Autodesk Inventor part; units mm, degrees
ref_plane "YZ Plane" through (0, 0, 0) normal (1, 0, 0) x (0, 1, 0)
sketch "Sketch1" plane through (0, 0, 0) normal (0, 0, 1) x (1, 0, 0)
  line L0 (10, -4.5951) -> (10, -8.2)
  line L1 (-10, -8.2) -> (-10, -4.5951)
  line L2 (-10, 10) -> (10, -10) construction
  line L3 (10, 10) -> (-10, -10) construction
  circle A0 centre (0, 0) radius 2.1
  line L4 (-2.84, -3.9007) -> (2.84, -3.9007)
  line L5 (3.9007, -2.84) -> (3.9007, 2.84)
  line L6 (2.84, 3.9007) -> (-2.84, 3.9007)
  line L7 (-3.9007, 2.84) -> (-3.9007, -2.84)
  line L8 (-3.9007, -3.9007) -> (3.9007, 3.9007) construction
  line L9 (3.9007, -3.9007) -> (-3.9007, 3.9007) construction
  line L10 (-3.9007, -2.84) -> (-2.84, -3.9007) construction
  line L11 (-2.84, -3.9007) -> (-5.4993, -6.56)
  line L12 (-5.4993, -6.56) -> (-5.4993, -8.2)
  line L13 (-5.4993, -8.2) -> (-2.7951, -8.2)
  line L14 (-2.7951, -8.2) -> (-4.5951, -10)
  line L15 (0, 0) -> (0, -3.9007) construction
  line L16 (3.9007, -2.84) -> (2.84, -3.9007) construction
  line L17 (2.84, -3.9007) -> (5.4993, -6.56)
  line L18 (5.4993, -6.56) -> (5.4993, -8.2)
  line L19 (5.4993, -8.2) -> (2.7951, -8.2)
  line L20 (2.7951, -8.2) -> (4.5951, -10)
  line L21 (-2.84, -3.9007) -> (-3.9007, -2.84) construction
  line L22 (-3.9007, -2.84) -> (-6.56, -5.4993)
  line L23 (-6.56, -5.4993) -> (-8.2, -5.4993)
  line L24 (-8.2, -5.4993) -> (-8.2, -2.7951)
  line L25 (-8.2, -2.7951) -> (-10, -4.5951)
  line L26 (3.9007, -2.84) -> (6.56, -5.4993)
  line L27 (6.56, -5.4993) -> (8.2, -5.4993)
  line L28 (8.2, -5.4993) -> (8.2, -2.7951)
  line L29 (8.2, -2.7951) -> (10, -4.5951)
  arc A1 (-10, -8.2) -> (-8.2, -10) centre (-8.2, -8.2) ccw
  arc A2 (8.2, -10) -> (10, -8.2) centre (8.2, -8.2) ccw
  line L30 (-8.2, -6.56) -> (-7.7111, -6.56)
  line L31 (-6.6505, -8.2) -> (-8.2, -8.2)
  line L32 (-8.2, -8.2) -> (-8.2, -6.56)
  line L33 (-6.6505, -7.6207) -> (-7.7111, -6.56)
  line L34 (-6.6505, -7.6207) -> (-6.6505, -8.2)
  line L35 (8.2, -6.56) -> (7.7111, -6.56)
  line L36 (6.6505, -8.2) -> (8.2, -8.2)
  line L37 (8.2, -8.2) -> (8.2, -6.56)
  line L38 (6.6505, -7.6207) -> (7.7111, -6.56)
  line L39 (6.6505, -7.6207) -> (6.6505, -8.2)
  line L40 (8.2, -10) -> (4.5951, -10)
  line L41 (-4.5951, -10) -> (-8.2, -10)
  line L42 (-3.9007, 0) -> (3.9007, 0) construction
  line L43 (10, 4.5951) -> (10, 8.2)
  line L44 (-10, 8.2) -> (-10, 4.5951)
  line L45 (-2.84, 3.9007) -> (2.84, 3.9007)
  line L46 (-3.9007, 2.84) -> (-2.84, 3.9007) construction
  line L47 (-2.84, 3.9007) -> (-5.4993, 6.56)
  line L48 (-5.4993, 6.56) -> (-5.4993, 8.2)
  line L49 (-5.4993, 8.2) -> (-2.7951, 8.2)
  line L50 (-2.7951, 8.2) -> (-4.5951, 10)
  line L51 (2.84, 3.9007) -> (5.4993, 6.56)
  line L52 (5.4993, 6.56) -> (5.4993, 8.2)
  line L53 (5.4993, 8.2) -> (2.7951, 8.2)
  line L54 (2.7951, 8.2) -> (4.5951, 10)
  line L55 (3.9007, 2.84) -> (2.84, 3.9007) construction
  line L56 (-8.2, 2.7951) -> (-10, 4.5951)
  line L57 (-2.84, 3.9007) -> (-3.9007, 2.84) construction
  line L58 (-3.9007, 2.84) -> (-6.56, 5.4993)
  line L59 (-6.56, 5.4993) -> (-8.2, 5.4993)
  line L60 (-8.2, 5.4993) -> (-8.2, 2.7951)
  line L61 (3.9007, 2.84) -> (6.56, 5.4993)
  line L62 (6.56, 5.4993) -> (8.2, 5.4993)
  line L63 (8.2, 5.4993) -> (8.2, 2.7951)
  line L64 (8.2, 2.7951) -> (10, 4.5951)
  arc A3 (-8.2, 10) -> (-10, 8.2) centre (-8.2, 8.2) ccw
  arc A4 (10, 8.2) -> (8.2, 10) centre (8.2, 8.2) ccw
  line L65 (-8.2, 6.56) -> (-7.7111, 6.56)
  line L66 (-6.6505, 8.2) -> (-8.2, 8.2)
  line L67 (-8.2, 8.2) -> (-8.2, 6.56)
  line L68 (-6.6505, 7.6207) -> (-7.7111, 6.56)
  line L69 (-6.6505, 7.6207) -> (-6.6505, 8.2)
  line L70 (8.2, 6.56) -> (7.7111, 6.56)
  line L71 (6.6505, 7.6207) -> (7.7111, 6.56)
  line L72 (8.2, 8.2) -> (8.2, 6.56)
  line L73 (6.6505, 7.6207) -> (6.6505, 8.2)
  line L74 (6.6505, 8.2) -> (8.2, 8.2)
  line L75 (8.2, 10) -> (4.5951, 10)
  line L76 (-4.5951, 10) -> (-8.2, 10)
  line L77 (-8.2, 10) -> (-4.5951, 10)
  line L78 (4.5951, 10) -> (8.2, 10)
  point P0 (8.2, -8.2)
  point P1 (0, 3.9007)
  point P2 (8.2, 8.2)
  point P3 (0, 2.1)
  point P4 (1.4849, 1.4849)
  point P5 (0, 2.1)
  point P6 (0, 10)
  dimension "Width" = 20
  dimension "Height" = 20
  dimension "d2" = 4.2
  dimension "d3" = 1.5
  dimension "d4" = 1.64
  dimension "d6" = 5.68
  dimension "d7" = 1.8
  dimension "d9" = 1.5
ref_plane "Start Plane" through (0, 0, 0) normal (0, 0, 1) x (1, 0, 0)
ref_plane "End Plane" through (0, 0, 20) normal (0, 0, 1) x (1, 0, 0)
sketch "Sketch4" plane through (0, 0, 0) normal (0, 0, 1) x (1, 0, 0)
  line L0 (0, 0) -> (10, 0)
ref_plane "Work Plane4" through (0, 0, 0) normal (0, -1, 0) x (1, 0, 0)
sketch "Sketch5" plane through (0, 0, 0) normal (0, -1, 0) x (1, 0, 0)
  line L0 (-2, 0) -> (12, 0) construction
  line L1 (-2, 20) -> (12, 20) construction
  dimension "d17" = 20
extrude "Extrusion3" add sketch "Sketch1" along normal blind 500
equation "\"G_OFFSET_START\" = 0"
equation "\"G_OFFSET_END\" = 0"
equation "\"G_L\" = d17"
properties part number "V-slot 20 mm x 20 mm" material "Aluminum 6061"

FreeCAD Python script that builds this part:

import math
import FreeCAD as App
import Part
import Sketcher

V = App.Vector
Q = App.Units.Quantity

doc = App.newDocument("Part")
body = doc.addObject("PartDesign::Body", "Body")

# Sketch on XY plane
sketch1 = body.newObject("Sketcher::SketchObject", "Sketch")
sketch1.AttachmentSupport = (doc.getObject("XY_Plane"), [""])
sketch1.MapMode = "FlatFace"
sketch1.addGeometry(Part.LineSegment(V(10, -8.2, 0), V(10, -4.6, 0)), False)
sketch1.addGeometry(Part.LineSegment(V(10, -4.6, 0), V(8.2, -2.8, 0)), False)
sketch1.addGeometry(Part.LineSegment(V(8.2, -2.8, 0), V(8.2, -5.5, 0)), False)
sketch1.addGeometry(Part.LineSegment(V(8.2, -5.5, 0), V(6.56, -5.5, 0)), False)
sketch1.addGeometry(Part.LineSegment(V(6.56, -5.5, 0), V(3.9, -2.84, 0)), False)
sketch1.addGeometry(Part.LineSegment(V(3.9, -2.84, 0), V(3.9, 2.84, 0)), False)
sketch1.addGeometry(Part.LineSegment(V(3.9, 2.84, 0), V(6.56, 5.5, 0)), False)
sketch1.addGeometry(Part.LineSegment(V(6.56, 5.5, 0), V(8.2, 5.5, 0)), False)
sketch1.addGeometry(Part.LineSegment(V(8.2, 5.5, 0), V(8.2, 2.8, 0)), False)
sketch1.addGeometry(Part.LineSegment(V(8.2, 2.8, 0), V(10, 4.6, 0)), False)
sketch1.addGeometry(Part.LineSegment(V(10, 4.6, 0), V(10, 8.2, 0)), False)
sketch1.addGeometry(Part.ArcOfCircle(Part.Circle(V(8.2, 8.2, 0), V(0, 0, 1), 1.8), math.radians(0), math.radians(90)), False)
sketch1.addGeometry(Part.LineSegment(V(8.2, 10, 0), V(4.6, 10, 0)), False)
sketch1.addGeometry(Part.LineSegment(V(4.6, 10, 0), V(2.8, 8.2, 0)), False)
sketch1.addGeometry(Part.LineSegment(V(2.8, 8.2, 0), V(5.5, 8.2, 0)), False)
sketch1.addGeometry(Part.LineSegment(V(5.5, 8.2, 0), V(5.5, 6.56, 0)), False)
sketch1.addGeometry(Part.LineSegment(V(5.5, 6.56, 0), V(2.84, 3.9, 0)), False)
sketch1.addGeometry(Part.LineSegment(V(2.84, 3.9, 0), V(-2.84, 3.9, 0)), False)
sketch1.addGeometry(Part.LineSegment(V(-2.84, 3.9, 0), V(-5.5, 6.56, 0)), False)
sketch1.addGeometry(Part.LineSegment(V(-5.5, 6.56, 0), V(-5.5, 8.2, 0)), False)
sketch1.addGeometry(Part.LineSegment(V(-5.5, 8.2, 0), V(-2.8, 8.2, 0)), False)
sketch1.addGeometry(Part.LineSegment(V(-2.8, 8.2, 0), V(-4.6, 10, 0)), False)
sketch1.addGeometry(Part.LineSegment(V(-4.6, 10, 0), V(-8.2, 10, 0)), False)
sketch1.addGeometry(Part.ArcOfCircle(Part.Circle(V(-8.2, 8.2, 0), V(0, 0, 1), 1.8), math.radians(90), math.radians(180)), False)
sketch1.addGeometry(Part.LineSegment(V(-10, 8.2, 0), V(-10, 4.6, 0)), False)
sketch1.addGeometry(Part.LineSegment(V(-10, 4.6, 0), V(-8.2, 2.8, 0)), False)
sketch1.addGeometry(Part.LineSegment(V(-8.2, 2.8, 0), V(-8.2, 5.5, 0)), False)
sketch1.addGeometry(Part.LineSegment(V(-8.2, 5.5, 0), V(-6.56, 5.5, 0)), False)
sketch1.addGeometry(Part.LineSegment(V(-6.56, 5.5, 0), V(-3.9, 2.84, 0)), False)
sketch1.addGeometry(Part.LineSegment(V(-3.9, 2.84, 0), V(-3.9, -2.84, 0)), False)
sketch1.addGeometry(Part.LineSegment(V(-3.9, -2.84, 0), V(-6.56, -5.5, 0)), False)
sketch1.addGeometry(Part.LineSegment(V(-6.56, -5.5, 0), V(-8.2, -5.5, 0)), False)
sketch1.addGeometry(Part.LineSegment(V(-8.2, -5.5, 0), V(-8.2, -2.8, 0)), False)
sketch1.addGeometry(Part.LineSegment(V(-8.2, -2.8, 0), V(-10, -4.6, 0)), False)
sketch1.addGeometry(Part.LineSegment(V(-10, -4.6, 0), V(-10, -8.2, 0)), False)
sketch1.addGeometry(Part.ArcOfCircle(Part.Circle(V(-8.2, -8.2, 0), V(0, 0, 1), 1.8), math.radians(180), math.radians(270)), False)
sketch1.addGeometry(Part.LineSegment(V(-8.2, -10, 0), V(-4.6, -10, 0)), False)
sketch1.addGeometry(Part.LineSegment(V(-4.6, -10, 0), V(-2.8, -8.2, 0)), False)
sketch1.addGeometry(Part.LineSegment(V(-2.8, -8.2, 0), V(-5.5, -8.2, 0)), False)
sketch1.addGeometry(Part.LineSegment(V(-5.5, -8.2, 0), V(-5.5, -6.56, 0)), False)
sketch1.addGeometry(Part.LineSegment(V(-5.5, -6.56, 0), V(-2.84, -3.9, 0)), False)
sketch1.addGeometry(Part.LineSegment(V(-2.84, -3.9, 0), V(2.84, -3.9, 0)), False)
sketch1.addGeometry(Part.LineSegment(V(2.84, -3.9, 0), V(5.5, -6.56, 0)), False)
sketch1.addGeometry(Part.LineSegment(V(5.5, -6.56, 0), V(5.5, -8.2, 0)), False)
sketch1.addGeometry(Part.LineSegment(V(5.5, -8.2, 0), V(2.8, -8.2, 0)), False)
sketch1.addGeometry(Part.LineSegment(V(2.8, -8.2, 0), V(4.6, -10, 0)), False)
sketch1.addGeometry(Part.LineSegment(V(4.6, -10, 0), V(8.2, -10, 0)), False)
sketch1.addGeometry(Part.ArcOfCircle(Part.Circle(V(8.2, -8.2, 0), V(0, 0, 1), 1.8), math.radians(-90), math.radians(0)), False)
sketch1.addGeometry(Part.LineSegment(V(-8.2, -8.2, 0), V(-8.2, -6.56, 0)), False)
sketch1.addGeometry(Part.LineSegment(V(-8.2, -6.56, 0), V(-7.71, -6.56, 0)), False)
sketch1.addGeometry(Part.LineSegment(V(-7.71, -6.56, 0), V(-6.65, -7.62, 0)), False)
sketch1.addGeometry(Part.LineSegment(V(-6.65, -7.62, 0), V(-6.65, -8.2, 0)), False)
sketch1.addGeometry(Part.LineSegment(V(-6.65, -8.2, 0), V(-8.2, -8.2, 0)), False)
sketch1.addGeometry(Part.LineSegment(V(7.71, -6.56, 0), V(8.2, -6.56, 0)), False)
sketch1.addGeometry(Part.LineSegment(V(8.2, -6.56, 0), V(8.2, -8.2, 0)), False)
sketch1.addGeometry(Part.LineSegment(V(8.2, -8.2, 0), V(6.65, -8.2, 0)), False)
sketch1.addGeometry(Part.LineSegment(V(6.65, -8.2, 0), V(6.65, -7.62, 0)), False)
sketch1.addGeometry(Part.LineSegment(V(6.65, -7.62, 0), V(7.71, -6.56, 0)), False)
sketch1.addGeometry(Part.LineSegment(V(-7.71, 6.56, 0), V(-8.2, 6.56, 0)), False)
sketch1.addGeometry(Part.LineSegment(V(-8.2, 6.56, 0), V(-8.2, 8.2, 0)), False)
sketch1.addGeometry(Part.LineSegment(V(-8.2, 8.2, 0), V(-6.65, 8.2, 0)), False)
sketch1.addGeometry(Part.LineSegment(V(-6.65, 8.2, 0), V(-6.65, 7.62, 0)), False)
sketch1.addGeometry(Part.LineSegment(V(-6.65, 7.62, 0), V(-7.71, 6.56, 0)), False)
sketch1.addGeometry(Part.Circle(V(0, 0, 0), V(0, 0, 1), 2.1), False)
sketch1.addGeometry(Part.LineSegment(V(8.2, 8.2, 0), V(8.2, 6.56, 0)), False)
sketch1.addGeometry(Part.LineSegment(V(8.2, 6.56, 0), V(7.71, 6.56, 0)), False)
sketch1.addGeometry(Part.LineSegment(V(7.71, 6.56, 0), V(6.65, 7.62, 0)), False)
sketch1.addGeometry(Part.LineSegment(V(6.65, 7.62, 0), V(6.65, 8.2, 0)), False)
sketch1.addGeometry(Part.LineSegment(V(6.65, 8.2, 0), V(8.2, 8.2, 0)), False)
sketch1.addConstraint(Sketcher.Constraint("Coincident", 0, 2, 1, 1))
sketch1.addConstraint(Sketcher.Constraint("Coincident", 1, 2, 2, 1))
sketch1.addConstraint(Sketcher.Constraint("Coincident", 2, 2, 3, 1))
sketch1.addConstraint(Sketcher.Constraint("Coincident", 3, 2, 4, 1))
sketch1.addConstraint(Sketcher.Constraint("Coincident", 4, 2, 5, 1))
sketch1.addConstraint(Sketcher.Constraint("Coincident", 5, 2, 6, 1))
sketch1.addConstraint(Sketcher.Constraint("Coincident", 6, 2, 7, 1))
sketch1.addConstraint(Sketcher.Constraint("Coincident", 7, 2, 8, 1))
sketch1.addConstraint(Sketcher.Constraint("Coincident", 8, 2, 9, 1))
sketch1.addConstraint(Sketcher.Constraint("Coincident", 9, 2, 10, 1))
sketch1.addConstraint(Sketcher.Constraint("Tangent", 10, 2, 11, 1))
sketch1.addConstraint(Sketcher.Constraint("Tangent", 11, 2, 12, 1))
sketch1.addConstraint(Sketcher.Constraint("Coincident", 12, 2, 13, 1))
sketch1.addConstraint(Sketcher.Constraint("Coincident", 13, 2, 14, 1))
sketch1.addConstraint(Sketcher.Constraint("Coincident", 14, 2, 15, 1))
sketch1.addConstraint(Sketcher.Constraint("Coincident", 15, 2, 16, 1))
sketch1.addConstraint(Sketcher.Constraint("Coincident", 16, 2, 17, 1))
sketch1.addConstraint(Sketcher.Constraint("Coincident", 17, 2, 18, 1))
sketch1.addConstraint(Sketcher.Constraint("Coincident", 18, 2, 19, 1))
sketch1.addConstraint(Sketcher.Constraint("Coincident", 19, 2, 20, 1))
sketch1.addConstraint(Sketcher.Constraint("Coincident", 20, 2, 21, 1))
sketch1.addConstraint(Sketcher.Constraint("Coincident", 21, 2, 22, 1))
sketch1.addConstraint(Sketcher.Constraint("Tangent", 22, 2, 23, 1))
sketch1.addConstraint(Sketcher.Constraint("Tangent", 23, 2, 24, 1))
sketch1.addConstraint(Sketcher.Constraint("Coincident", 24, 2, 25, 1))
sketch1.addConstraint(Sketcher.Constraint("Coincident", 25, 2, 26, 1))
sketch1.addConstraint(Sketcher.Constraint("Coincident", 26, 2, 27, 1))
sketch1.addConstraint(Sketcher.Constraint("Coincident", 27, 2, 28, 1))
sketch1.addConstraint(Sketcher.Constraint("Coincident", 28, 2, 29, 1))
sketch1.addConstraint(Sketcher.Constraint("Coincident", 29, 2, 30, 1))
sketch1.addConstraint(Sketcher.Constraint("Coincident", 30, 2, 31, 1))
sketch1.addConstraint(Sketcher.Constraint("Coincident", 31, 2, 32, 1))
sketch1.addConstraint(Sketcher.Constraint("Coincident", 32, 2, 33, 1))
sketch1.addConstraint(Sketcher.Constraint("Coincident", 33, 2, 34, 1))
sketch1.addConstraint(Sketcher.Constraint("Tangent", 34, 2, 35, 1))
sketch1.addConstraint(Sketcher.Constraint("Tangent", 35, 2, 36, 1))
sketch1.addConstraint(Sketcher.Constraint("Coincident", 36, 2, 37, 1))
sketch1.addConstraint(Sketcher.Constraint("Coincident", 37, 2, 38, 1))
sketch1.addConstraint(Sketcher.Constraint("Coincident", 38, 2, 39, 1))
sketch1.addConstraint(Sketcher.Constraint("Coincident", 39, 2, 40, 1))
sketch1.addConstraint(Sketcher.Constraint("Coincident", 40, 2, 41, 1))
sketch1.addConstraint(Sketcher.Constraint("Coincident", 41, 2, 42, 1))
sketch1.addConstraint(Sketcher.Constraint("Coincident", 42, 2, 43, 1))
sketch1.addConstraint(Sketcher.Constraint("Coincident", 43, 2, 44, 1))
sketch1.addConstraint(Sketcher.Constraint("Coincident", 44, 2, 45, 1))
sketch1.addConstraint(Sketcher.Constraint("Coincident", 45, 2, 46, 1))
sketch1.addConstraint(Sketcher.Constraint("Tangent", 46, 2, 47, 1))
sketch1.addConstraint(Sketcher.Constraint("Tangent", 47, 2, 0, 1))
sketch1.addConstraint(Sketcher.Constraint("Coincident", 48, 2, 49, 1))
sketch1.addConstraint(Sketcher.Constraint("Coincident", 49, 2, 50, 1))
sketch1.addConstraint(Sketcher.Constraint("Coincident", 50, 2, 51, 1))
sketch1.addConstraint(Sketcher.Constraint("Coincident", 51, 2, 52, 1))
sketch1.addConstraint(Sketcher.Constraint("Coincident", 52, 2, 48, 1))
sketch1.addConstraint(Sketcher.Constraint("Coincident", 53, 2, 54, 1))
sketch1.addConstraint(Sketcher.Constraint("Coincident", 54, 2, 55, 1))
sketch1.addConstraint(Sketcher.Constraint("Coincident", 55, 2, 56, 1))
sketch1.addConstraint(Sketcher.Constraint("Coincident", 56, 2, 57, 1))
sketch1.addConstraint(Sketcher.Constraint("Coincident", 57, 2, 53, 1))
sketch1.addConstraint(Sketcher.Constraint("Coincident", 58, 2, 59, 1))
sketch1.addConstraint(Sketcher.Constraint("Coincident", 59, 2, 60, 1))
sketch1.addConstraint(Sketcher.Constraint("Coincident", 60, 2, 61, 1))
sketch1.addConstraint(Sketcher.Constraint("Coincident", 61, 2, 62, 1))
sketch1.addConstraint(Sketcher.Constraint("Coincident", 62, 2, 58, 1))
sketch1.addConstraint(Sketcher.Constraint("Coincident", 64, 2, 65, 1))
sketch1.addConstraint(Sketcher.Constraint("Coincident", 65, 2, 66, 1))
sketch1.addConstraint(Sketcher.Constraint("Coincident", 66, 2, 67, 1))
sketch1.addConstraint(Sketcher.Constraint("Coincident", 67, 2, 68, 1))
sketch1.addConstraint(Sketcher.Constraint("Coincident", 68, 2, 64, 1))
sketch1.addConstraint(Sketcher.Constraint("Vertical", 0))
sketch1.addConstraint(Sketcher.Constraint("Vertical", 2))
sketch1.addConstraint(Sketcher.Constraint("Horizontal", 3))
sketch1.addConstraint(Sketcher.Constraint("Vertical", 5))
sketch1.addConstraint(Sketcher.Constraint("Horizontal", 7))
sketch1.addConstraint(Sketcher.Constraint("Vertical", 8))
sketch1.addConstraint(Sketcher.Constraint("Vertical", 10))
sketch1.addConstraint(Sketcher.Constraint("Horizontal", 12))
sketch1.addConstraint(Sketcher.Constraint("Horizontal", 14))
sketch1.addConstraint(Sketcher.Constraint("Vertical", 15))
sketch1.addConstraint(Sketcher.Constraint("Horizontal", 17))
sketch1.addConstraint(Sketcher.Constraint("Vertical", 19))
sketch1.addConstraint(Sketcher.Constraint("Horizontal", 20))
sketch1.addConstraint(Sketcher.Constraint("Horizontal", 22))
sketch1.addConstraint(Sketcher.Constraint("Vertical", 24))
sketch1.addConstraint(Sketcher.Constraint("Vertical", 26))
sketch1.addConstraint(Sketcher.Constraint("Horizontal", 27))
sketch1.addConstraint(Sketcher.Constraint("Vertical", 29))
sketch1.addConstraint(Sketcher.Constraint("Horizontal", 31))
sketch1.addConstraint(Sketcher.Constraint("Vertical", 32))
sketch1.addConstraint(Sketcher.Constraint("Vertical", 34))
sketch1.addConstraint(Sketcher.Constraint("Horizontal", 36))
sketch1.addConstraint(Sketcher.Constraint("Horizontal", 38))
sketch1.addConstraint(Sketcher.Constraint("Vertical", 39))
sketch1.addConstraint(Sketcher.Constraint("Horizontal", 41))
sketch1.addConstraint(Sketcher.Constraint("Vertical", 43))
sketch1.addConstraint(Sketcher.Constraint("Horizontal", 44))
sketch1.addConstraint(Sketcher.Constraint("Horizontal", 46))
sketch1.addConstraint(Sketcher.Constraint("Vertical", 48))
sketch1.addConstraint(Sketcher.Constraint("Horizontal", 49))
sketch1.addConstraint(Sketcher.Constraint("Vertical", 51))
sketch1.addConstraint(Sketcher.Constraint("Horizontal", 52))
sketch1.addConstraint(Sketcher.Constraint("Horizontal", 53))
sketch1.addConstraint(Sketcher.Constraint("Vertical", 54))
sketch1.addConstraint(Sketcher.Constraint("Horizontal", 55))
sketch1.addConstraint(Sketcher.Constraint("Vertical", 56))
sketch1.addConstraint(Sketcher.Constraint("Horizontal", 58))
sketch1.addConstraint(Sketcher.Constraint("Vertical", 59))
sketch1.addConstraint(Sketcher.Constraint("Horizontal", 60))
sketch1.addConstraint(Sketcher.Constraint("Vertical", 61))
sketch1.addConstraint(Sketcher.Constraint("Vertical", 64))
sketch1.addConstraint(Sketcher.Constraint("Horizontal", 65))
sketch1.addConstraint(Sketcher.Constraint("Vertical", 67))
sketch1.addConstraint(Sketcher.Constraint("Horizontal", 68))
sketch1.addConstraint(Sketcher.Constraint("Coincident", 63, 3, -1, 1))
sketch1.addConstraint(Sketcher.Constraint("Coincident", 52, 2, 35, 3))
sketch1.addConstraint(Sketcher.Constraint("Coincident", 54, 2, 47, 3))
sketch1.addConstraint(Sketcher.Constraint("Coincident", 59, 2, 23, 3))
sketch1.addConstraint(Sketcher.Constraint("Coincident", 68, 2, 11, 3))
sketch1.addConstraint(Sketcher.Constraint("Equal", 11, 23))
sketch1.addConstraint(Sketcher.Constraint("Equal", 23, 35))
sketch1.addConstraint(Sketcher.Constraint("Equal", 35, 47))
sketch1.addConstraint(Sketcher.Constraint("Symmetric", 11, 3, 35, 3, -1, 1))
sketch1.addConstraint(Sketcher.Constraint("Symmetric", 23, 3, 47, 3, -1, 1))
sketch1.addConstraint(Sketcher.Constraint("Symmetric", 1, 2, 25, 2, -1, 1))
sketch1.addConstraint(Sketcher.Constraint("Symmetric", 3, 2, 27, 2, -1, 1))
sketch1.addConstraint(Sketcher.Constraint("Symmetric", 4, 2, 28, 2, -1, 1))
sketch1.addConstraint(Sketcher.Constraint("Symmetric", 6, 2, 30, 2, -1, 1))
sketch1.addConstraint(Sketcher.Constraint("Symmetric", 8, 2, 32, 2, -1, 1))
sketch1.addConstraint(Sketcher.Constraint("Symmetric", 13, 2, 37, 2, -1, 1))
sketch1.addConstraint(Sketcher.Constraint("Symmetric", 15, 2, 39, 2, -1, 1))
sketch1.addConstraint(Sketcher.Constraint("Symmetric", 16, 2, 40, 2, -1, 1))
sketch1.addConstraint(Sketcher.Constraint("Symmetric", 18, 2, 42, 2, -1, 1))
sketch1.addConstraint(Sketcher.Constraint("Symmetric", 20, 2, 44, 2, -1, 1))
sketch1.addConstraint(Sketcher.Constraint("Symmetric", 56, 2, 61, 2, -1, 1))
sketch1.addConstraint(Sketcher.Constraint("Symmetric", 57, 2, 62, 2, -1, 1))
sketch1.addConstraint(Sketcher.Constraint("Symmetric", 49, 2, 65, 2, -1, 1))
sketch1.addConstraint(Sketcher.Constraint("Symmetric", 50, 2, 66, 2, -1, 1))
sketch1.addConstraint(Sketcher.Constraint("Symmetric", 11, 3, 23, 3, -2))
sketch1.addConstraint(Sketcher.Constraint("Symmetric", 15, 2, 18, 2, -2))
sketch1.addConstraint(Sketcher.Constraint("Symmetric", 13, 2, 20, 2, -2))
sketch1.addConstraint(Sketcher.Constraint("Symmetric", 8, 2, 25, 2, -2))
sketch1.addConstraint(Sketcher.Constraint("Symmetric", 6, 2, 27, 2, -2))
sketch1.addConstraint(Sketcher.Constraint("Symmetric", 50, 2, 56, 2, -2))
sketch1.addConstraint(Sketcher.Constraint("Symmetric", 49, 2, 57, 2, -2))
sketch1.addConstraint(Sketcher.Constraint("Parallel", 1, 4))
sketch1.addConstraint(Sketcher.Constraint("Perpendicular", 4, 6))
sketch1.addConstraint(Sketcher.Constraint("Parallel", 6, 9))
sketch1.addConstraint(Sketcher.Constraint("Parallel", 9, 13))
sketch1.addConstraint(Sketcher.Constraint("Parallel", 13, 16))
sketch1.addConstraint(Sketcher.Constraint("Perpendicular", 16, 18))
sketch1.addConstraint(Sketcher.Constraint("Parallel", 18, 21))
sketch1.addConstraint(Sketcher.Constraint("Parallel", 21, 25))
sketch1.addConstraint(Sketcher.Constraint("Perpendicular", 28, 30))
sketch1.addConstraint(Sketcher.Constraint("Parallel", 30, 33))
sketch1.addConstraint(Sketcher.Constraint("Parallel", 33, 37))
sketch1.addConstraint(Sketcher.Constraint("Perpendicular", 40, 42))
sketch1.addConstraint(Sketcher.Constraint("Parallel", 42, 45))
sketch1.addConstraint(Sketcher.Constraint("Parallel", 45, 50))
sketch1.addConstraint(Sketcher.Constraint("Perpendicular", 50, 57))
sketch1.addConstraint(Sketcher.Constraint("Horizontal", 10, 2, 13, 2))
sketch1.addConstraint(Sketcher.Constraint("Horizontal", 42, 2, 48, 2))
sketch1.addConstraint(Sketcher.Constraint("Vertical", 47, 3, 1, 2))
sketch1.addConstraint(Sketcher.Constraint("Equal", 46, 0))
sketch1.addConstraint(Sketcher.Constraint("Equal", 44, 2))
sketch1.addConstraint(Sketcher.Constraint("Equal", 41, 5))
sketch1.addConstraint(Sketcher.Constraint("Equal", 31, 15))
sketch1.addConstraint(Sketcher.Constraint("Equal", 6, 16))
sketch1.addConstraint(Sketcher.Constraint("Diameter", 63, Q("4.2 mm")))
sketch1.addConstraint(Sketcher.Constraint("Radius", 11, Q("1.8 mm")))
sketch1.addConstraint(Sketcher.Constraint("Distance", 50, Q("1.5 mm")))
sketch1.addConstraint(Sketcher.Constraint("DistanceX", 3, 2, 3, 1, Q("1.64 mm")))
sketch1.addConstraint(Sketcher.Constraint("DistanceX", 17, 2, 17, 1, Q("5.68 mm")))
sketch1.addConstraint(Sketcher.Constraint("DistanceX", -1, 1, 0, 2, Q("10 mm")))
sketch1.addConstraint(Sketcher.Constraint("DistanceX", 12, 2, 12, 1, Q("3.605 mm")))
sketch1.addConstraint(Sketcher.Constraint("DistanceX", 49, 1, 49, 2, Q("0.489 mm")))
sketch1.addConstraint(Sketcher.Constraint("DistanceX", 14, 1, 14, 2, Q("2.7042 mm")))
pad1 = body.newObject("PartDesign::Pad", "Pad")
pad1.Profile = sketch1
pad1.Length = 500

doc.recompute()
